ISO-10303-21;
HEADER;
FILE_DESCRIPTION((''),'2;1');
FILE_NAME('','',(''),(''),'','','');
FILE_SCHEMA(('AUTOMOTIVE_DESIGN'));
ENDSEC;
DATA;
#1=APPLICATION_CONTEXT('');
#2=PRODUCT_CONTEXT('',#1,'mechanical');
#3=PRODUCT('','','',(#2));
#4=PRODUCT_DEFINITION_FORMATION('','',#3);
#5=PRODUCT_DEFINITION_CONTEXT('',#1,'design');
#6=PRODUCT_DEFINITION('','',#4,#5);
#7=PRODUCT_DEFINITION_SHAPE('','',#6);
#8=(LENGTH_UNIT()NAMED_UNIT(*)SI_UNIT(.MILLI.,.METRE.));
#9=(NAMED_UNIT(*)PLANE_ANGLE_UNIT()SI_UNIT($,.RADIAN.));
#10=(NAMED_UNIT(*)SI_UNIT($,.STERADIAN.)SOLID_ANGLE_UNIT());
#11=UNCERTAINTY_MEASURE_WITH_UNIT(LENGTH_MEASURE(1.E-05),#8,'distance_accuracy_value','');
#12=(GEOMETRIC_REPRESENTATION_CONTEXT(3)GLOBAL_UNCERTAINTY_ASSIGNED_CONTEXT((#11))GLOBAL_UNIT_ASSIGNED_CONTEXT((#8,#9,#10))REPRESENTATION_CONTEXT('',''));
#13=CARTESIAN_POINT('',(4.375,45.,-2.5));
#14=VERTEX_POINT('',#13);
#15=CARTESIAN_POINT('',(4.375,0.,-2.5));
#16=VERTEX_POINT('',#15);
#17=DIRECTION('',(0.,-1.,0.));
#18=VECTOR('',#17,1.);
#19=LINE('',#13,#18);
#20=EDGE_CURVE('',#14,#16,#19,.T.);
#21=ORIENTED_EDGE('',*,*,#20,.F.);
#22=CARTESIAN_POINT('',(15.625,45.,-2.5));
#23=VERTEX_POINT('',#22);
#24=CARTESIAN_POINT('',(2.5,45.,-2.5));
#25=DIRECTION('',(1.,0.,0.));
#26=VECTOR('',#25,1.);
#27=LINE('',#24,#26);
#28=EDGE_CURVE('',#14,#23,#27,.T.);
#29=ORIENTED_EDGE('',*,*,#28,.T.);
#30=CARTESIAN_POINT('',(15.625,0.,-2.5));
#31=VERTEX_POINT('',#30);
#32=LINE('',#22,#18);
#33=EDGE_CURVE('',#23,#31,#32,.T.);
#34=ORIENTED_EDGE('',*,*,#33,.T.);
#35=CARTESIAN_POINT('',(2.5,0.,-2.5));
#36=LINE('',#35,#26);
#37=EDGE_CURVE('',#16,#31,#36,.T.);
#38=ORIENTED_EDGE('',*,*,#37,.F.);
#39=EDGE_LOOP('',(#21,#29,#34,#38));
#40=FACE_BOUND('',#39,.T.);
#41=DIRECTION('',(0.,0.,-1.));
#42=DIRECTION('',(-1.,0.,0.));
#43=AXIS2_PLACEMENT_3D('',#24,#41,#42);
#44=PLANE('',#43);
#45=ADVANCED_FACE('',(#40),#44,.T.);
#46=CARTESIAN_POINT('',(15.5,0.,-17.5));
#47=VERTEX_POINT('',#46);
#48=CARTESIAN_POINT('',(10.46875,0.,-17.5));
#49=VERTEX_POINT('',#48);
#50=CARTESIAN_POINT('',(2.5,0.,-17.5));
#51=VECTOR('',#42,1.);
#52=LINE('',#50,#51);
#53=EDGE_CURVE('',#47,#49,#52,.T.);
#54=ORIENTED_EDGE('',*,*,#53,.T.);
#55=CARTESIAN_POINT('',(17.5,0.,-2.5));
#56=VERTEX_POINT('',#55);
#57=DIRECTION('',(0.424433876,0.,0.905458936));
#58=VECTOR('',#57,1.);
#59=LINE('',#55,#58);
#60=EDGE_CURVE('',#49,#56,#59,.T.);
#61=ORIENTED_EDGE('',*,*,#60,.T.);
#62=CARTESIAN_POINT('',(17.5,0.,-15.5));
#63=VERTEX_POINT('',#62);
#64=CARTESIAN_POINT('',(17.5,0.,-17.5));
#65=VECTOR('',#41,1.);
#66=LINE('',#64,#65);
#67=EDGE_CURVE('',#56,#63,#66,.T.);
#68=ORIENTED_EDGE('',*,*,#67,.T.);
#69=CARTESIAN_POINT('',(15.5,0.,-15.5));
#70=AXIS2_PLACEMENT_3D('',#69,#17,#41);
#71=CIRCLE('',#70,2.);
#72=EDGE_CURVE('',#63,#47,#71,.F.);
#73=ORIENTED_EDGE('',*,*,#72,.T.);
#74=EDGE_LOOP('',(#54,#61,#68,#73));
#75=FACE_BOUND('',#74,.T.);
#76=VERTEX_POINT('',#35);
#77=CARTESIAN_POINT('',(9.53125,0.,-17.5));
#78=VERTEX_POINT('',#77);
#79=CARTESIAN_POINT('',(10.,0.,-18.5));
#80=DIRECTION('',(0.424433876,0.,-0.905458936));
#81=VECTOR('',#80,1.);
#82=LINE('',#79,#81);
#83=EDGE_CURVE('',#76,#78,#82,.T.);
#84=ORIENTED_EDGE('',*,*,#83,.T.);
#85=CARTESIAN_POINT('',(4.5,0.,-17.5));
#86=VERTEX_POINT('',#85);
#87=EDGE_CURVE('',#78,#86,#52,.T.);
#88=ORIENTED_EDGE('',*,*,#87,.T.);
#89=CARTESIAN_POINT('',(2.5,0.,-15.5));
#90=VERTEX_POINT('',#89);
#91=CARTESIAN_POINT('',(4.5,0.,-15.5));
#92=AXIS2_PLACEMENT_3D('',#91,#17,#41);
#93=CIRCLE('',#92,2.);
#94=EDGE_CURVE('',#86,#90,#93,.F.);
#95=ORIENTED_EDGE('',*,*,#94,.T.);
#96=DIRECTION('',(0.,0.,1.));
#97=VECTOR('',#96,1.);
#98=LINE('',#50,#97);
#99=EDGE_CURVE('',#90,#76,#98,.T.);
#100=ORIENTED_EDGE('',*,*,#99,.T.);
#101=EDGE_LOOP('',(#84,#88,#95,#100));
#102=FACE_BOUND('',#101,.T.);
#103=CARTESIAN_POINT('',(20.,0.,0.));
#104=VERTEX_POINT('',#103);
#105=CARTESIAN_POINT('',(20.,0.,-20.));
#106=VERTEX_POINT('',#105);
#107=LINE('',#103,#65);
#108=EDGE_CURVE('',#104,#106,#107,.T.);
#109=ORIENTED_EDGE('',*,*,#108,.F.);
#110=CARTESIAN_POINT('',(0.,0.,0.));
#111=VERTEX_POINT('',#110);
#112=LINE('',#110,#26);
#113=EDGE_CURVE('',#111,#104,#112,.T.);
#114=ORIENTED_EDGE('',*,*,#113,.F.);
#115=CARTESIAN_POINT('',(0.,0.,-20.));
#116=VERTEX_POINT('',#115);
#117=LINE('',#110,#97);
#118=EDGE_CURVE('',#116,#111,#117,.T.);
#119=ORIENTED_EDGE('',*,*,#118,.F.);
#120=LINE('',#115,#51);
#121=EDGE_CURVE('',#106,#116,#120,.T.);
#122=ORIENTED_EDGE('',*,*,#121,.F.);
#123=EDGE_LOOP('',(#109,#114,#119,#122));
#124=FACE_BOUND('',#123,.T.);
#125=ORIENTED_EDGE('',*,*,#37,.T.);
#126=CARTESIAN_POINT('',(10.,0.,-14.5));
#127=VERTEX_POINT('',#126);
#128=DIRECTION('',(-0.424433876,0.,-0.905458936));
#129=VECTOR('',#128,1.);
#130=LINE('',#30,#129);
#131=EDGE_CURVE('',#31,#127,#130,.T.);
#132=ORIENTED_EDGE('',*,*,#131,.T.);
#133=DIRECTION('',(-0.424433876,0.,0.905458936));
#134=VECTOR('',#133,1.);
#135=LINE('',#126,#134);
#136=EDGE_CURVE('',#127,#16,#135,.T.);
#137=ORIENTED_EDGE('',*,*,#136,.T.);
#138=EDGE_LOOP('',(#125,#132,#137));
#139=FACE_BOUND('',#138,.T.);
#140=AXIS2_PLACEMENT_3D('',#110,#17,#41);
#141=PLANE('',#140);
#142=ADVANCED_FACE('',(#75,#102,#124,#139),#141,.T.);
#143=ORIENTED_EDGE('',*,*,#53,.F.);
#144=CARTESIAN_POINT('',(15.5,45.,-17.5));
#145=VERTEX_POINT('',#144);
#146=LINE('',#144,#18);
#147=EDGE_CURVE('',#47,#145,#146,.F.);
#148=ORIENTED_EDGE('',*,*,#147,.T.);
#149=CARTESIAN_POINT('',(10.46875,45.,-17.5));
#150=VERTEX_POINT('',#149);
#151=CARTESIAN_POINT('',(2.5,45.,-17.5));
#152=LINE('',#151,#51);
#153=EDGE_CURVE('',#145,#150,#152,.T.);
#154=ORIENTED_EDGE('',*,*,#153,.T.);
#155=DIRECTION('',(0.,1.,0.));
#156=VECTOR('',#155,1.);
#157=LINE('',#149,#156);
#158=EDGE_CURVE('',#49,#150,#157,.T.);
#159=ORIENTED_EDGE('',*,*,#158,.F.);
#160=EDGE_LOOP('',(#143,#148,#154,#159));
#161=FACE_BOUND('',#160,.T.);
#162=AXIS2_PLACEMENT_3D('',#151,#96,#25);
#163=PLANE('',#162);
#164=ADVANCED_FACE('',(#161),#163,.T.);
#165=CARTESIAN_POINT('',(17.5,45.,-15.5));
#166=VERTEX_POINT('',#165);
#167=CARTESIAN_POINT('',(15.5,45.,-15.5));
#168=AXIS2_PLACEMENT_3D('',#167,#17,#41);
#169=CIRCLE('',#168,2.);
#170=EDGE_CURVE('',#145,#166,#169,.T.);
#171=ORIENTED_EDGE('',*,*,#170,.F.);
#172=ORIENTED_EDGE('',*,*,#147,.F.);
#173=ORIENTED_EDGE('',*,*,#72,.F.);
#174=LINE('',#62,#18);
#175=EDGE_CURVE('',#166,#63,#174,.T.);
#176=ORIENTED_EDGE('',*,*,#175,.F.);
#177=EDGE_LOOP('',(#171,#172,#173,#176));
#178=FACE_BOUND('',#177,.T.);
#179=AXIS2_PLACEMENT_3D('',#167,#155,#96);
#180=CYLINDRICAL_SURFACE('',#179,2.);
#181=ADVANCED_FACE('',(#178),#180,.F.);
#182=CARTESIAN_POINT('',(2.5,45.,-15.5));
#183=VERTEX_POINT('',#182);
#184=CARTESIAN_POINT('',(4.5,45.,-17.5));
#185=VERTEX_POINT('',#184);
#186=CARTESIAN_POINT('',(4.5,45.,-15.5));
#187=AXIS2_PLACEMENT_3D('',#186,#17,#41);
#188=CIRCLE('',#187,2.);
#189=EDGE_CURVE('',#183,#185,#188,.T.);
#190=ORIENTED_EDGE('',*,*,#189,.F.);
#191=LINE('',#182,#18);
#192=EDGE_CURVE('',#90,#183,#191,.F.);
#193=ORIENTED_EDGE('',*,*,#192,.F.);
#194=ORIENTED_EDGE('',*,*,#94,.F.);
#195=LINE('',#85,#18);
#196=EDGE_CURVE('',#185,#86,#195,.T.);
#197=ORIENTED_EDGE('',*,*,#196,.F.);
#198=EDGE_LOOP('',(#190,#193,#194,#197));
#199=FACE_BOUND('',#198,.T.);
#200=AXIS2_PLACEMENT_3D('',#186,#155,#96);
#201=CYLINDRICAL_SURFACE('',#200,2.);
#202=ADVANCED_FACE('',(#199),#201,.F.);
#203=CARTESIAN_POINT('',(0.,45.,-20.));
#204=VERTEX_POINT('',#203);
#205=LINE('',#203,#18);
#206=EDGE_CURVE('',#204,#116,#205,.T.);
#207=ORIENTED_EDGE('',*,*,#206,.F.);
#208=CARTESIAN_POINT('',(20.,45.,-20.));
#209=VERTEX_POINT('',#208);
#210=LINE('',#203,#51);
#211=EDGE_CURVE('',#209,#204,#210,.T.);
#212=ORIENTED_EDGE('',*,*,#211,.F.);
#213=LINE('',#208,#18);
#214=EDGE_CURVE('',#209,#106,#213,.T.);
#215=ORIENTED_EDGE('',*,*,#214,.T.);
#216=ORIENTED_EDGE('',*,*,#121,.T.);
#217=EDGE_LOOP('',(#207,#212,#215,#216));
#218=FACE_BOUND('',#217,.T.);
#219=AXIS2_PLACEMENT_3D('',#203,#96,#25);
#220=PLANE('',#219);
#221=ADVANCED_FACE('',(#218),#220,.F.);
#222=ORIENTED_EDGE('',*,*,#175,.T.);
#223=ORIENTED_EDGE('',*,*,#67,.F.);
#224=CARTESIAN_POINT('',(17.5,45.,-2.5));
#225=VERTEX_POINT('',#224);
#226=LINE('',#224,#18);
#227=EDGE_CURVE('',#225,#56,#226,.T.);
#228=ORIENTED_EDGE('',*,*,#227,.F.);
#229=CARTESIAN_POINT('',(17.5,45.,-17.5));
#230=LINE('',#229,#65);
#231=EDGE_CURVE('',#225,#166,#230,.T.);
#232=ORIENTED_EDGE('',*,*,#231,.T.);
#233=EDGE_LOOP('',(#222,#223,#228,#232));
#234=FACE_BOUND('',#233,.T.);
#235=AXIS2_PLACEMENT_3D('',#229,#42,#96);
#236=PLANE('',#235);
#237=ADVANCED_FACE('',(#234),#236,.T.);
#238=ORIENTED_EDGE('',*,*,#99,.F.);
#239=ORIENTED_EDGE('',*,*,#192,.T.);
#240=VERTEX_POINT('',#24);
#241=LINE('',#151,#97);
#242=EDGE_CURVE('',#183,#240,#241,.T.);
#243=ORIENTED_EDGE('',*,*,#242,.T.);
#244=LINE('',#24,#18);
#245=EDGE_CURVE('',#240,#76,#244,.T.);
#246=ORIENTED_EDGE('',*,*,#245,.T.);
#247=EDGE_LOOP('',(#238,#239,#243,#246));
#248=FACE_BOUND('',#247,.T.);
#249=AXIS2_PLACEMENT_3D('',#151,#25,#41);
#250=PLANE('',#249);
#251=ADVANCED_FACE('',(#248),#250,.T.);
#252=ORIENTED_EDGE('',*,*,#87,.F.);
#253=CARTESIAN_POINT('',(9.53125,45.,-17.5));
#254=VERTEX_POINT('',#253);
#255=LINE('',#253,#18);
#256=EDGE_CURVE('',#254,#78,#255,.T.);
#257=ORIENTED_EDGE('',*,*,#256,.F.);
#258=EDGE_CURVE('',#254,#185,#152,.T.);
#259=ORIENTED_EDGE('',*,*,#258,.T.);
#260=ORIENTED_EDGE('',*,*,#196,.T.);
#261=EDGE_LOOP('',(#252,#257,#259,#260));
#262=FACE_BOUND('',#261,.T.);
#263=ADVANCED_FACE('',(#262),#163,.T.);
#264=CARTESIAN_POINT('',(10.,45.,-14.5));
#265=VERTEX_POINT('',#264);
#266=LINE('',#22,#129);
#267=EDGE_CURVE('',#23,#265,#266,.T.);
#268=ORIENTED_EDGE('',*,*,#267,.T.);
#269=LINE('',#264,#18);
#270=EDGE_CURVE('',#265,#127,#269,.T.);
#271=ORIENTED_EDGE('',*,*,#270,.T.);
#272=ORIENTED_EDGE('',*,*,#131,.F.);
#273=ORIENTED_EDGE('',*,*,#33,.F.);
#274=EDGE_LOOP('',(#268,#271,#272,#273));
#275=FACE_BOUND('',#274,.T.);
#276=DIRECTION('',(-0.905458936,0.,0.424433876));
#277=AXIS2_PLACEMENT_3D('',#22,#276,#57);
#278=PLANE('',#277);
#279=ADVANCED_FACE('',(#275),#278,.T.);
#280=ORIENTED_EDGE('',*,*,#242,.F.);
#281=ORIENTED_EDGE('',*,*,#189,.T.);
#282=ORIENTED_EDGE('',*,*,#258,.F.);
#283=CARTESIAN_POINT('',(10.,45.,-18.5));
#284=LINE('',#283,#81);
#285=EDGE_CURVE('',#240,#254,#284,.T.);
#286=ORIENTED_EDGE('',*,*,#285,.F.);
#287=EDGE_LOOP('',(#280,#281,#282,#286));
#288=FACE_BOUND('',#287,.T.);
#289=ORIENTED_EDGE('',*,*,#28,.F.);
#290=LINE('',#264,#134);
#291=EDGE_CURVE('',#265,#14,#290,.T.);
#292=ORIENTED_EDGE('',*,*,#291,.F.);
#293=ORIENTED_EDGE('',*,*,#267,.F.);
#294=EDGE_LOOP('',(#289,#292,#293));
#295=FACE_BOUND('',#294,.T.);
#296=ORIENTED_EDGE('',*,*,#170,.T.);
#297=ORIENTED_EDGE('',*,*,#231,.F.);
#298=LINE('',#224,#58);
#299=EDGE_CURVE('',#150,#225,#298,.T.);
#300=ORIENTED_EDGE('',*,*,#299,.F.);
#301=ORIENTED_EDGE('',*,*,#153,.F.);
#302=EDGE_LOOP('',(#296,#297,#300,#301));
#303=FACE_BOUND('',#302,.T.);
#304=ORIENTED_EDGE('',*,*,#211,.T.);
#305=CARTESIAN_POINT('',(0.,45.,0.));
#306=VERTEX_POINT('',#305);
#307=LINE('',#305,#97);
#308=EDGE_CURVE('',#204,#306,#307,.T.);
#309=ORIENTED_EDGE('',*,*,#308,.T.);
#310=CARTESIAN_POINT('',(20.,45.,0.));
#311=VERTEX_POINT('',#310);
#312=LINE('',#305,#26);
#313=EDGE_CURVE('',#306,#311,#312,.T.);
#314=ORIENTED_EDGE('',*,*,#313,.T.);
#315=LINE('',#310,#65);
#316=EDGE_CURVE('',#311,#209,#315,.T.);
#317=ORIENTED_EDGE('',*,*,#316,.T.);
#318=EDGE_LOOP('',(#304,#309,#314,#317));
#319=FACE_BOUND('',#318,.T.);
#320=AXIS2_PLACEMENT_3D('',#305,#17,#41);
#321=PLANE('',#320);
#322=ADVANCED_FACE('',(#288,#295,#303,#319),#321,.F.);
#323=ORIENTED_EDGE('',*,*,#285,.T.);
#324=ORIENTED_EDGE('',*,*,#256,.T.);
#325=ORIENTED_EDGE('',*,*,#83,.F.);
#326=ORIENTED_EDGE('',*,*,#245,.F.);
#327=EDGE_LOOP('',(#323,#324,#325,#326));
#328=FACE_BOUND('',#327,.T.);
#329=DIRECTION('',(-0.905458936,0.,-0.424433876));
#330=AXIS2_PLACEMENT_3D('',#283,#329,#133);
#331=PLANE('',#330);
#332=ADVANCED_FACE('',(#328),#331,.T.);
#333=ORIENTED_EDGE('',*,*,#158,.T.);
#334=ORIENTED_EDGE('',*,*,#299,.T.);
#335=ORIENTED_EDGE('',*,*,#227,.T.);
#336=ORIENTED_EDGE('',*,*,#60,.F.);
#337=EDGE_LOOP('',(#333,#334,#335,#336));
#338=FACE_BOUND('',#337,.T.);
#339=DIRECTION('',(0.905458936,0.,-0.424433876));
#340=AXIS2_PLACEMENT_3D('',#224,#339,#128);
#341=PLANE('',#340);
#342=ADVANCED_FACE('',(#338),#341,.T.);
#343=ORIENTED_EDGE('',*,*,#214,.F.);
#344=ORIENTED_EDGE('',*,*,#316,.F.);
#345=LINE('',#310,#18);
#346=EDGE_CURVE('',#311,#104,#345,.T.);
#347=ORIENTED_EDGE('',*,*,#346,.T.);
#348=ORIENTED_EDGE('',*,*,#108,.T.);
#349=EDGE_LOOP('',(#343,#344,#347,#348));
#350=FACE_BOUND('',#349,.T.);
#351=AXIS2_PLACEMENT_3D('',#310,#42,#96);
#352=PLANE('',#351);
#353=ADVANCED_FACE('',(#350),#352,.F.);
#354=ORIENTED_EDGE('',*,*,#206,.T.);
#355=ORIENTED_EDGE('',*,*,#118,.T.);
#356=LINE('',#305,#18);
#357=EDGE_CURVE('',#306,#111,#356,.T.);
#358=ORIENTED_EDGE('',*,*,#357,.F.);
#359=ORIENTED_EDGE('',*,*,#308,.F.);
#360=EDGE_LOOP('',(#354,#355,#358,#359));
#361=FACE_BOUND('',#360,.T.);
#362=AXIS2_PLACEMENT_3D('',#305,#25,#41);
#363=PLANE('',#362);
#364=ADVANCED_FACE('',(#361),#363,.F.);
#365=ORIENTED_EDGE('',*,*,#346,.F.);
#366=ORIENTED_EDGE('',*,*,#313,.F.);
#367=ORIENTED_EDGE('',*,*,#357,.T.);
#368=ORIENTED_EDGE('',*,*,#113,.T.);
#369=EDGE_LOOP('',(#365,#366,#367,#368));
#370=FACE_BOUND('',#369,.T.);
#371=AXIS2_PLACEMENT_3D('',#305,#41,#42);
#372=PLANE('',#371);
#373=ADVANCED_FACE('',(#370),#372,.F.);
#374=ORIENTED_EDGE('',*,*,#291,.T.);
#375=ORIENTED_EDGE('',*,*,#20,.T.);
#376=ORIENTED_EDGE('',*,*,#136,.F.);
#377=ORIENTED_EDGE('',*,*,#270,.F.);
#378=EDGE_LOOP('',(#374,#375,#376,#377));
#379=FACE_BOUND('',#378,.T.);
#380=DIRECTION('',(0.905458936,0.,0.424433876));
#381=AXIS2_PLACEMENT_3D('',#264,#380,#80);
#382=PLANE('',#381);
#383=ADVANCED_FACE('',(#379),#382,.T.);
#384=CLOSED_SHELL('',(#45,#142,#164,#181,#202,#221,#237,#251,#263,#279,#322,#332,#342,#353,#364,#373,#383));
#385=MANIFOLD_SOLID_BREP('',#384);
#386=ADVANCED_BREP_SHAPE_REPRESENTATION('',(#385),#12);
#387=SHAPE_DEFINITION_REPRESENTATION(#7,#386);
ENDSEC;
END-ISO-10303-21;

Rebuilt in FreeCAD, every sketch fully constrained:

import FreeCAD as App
import Part
import Sketcher
from FreeCAD import Vector


def edges_at(feature, points):
    """Names of the edges that pass closest to the given points."""
    edges = feature.Shape.Edges
    near = lambda p: min(range(len(edges)), key=lambda i: edges[i].distToShape(Part.Vertex(*p))[0])
    return sorted({f"Edge{near(p) + 1}" for p in points})


def add_polygon(sketch, points):
    """Adds a closed chain of lines whose ends are joined by coincident constraints."""
    first, n = sketch.GeometryCount, len(points)
    for a, b in zip(points, points[1:] + points[:1]):
        sketch.addGeometry(Part.LineSegment(App.Vector(*a, 0), App.Vector(*b, 0)), False)
    for i in range(n):
        sketch.addConstraint(Sketcher.Constraint("Coincident", first + i, 2, first + (i + 1) % n, 1))

doc = App.newDocument("Part")
params = doc.addObject("Spreadsheet::Sheet", "Params")
for row, (alias, value) in enumerate([
    ("sketch1_width", "20 mm"),
    ("sketch1_width2", "15 mm"),
    ("pad1_length", "45 mm"),
    ("pad2_length", "45 mm"),
    ("fillet_radius", "2 mm"),
], start=1):
    params.set(f"A{row}", alias)
    params.set(f"B{row}", "=" + value)
    params.setAlias(f"B{row}", alias)

body = doc.addObject("PartDesign::Body", "Body")

# Sketch on XZ plane
sketch1 = body.newObject("Sketcher::SketchObject", "Sketch")
sketch1.AttachmentSupport = (doc.getObject("XZ_Plane"), [""])
sketch1.MapMode = "FlatFace"
add_polygon(sketch1, [(0, -20), (0, 0), (20, 0), (20, -20)])  # lines 0-3
add_polygon(sketch1, [(18, -2), (2, -2), (2, -18), (18, -18)])  # lines 4-7
sketch1.addConstraint(Sketcher.Constraint("Vertical", 0))
sketch1.addConstraint(Sketcher.Constraint("Horizontal", 1))
sketch1.addConstraint(Sketcher.Constraint("Vertical", 2))
sketch1.addConstraint(Sketcher.Constraint("Horizontal", 3))
sketch1.addConstraint(Sketcher.Constraint("Horizontal", 4))
sketch1.addConstraint(Sketcher.Constraint("Vertical", 5))
sketch1.addConstraint(Sketcher.Constraint("Horizontal", 6))
sketch1.addConstraint(Sketcher.Constraint("Vertical", 7))
sketch1.addConstraint(Sketcher.Constraint("Coincident", 0, 2, -1, 1))
sketch1.addConstraint(Sketcher.Constraint("Equal", 3, 0))
sketch1.addConstraint(Sketcher.Constraint("Equal", 6, 5))
sketch1.addConstraint(Sketcher.Constraint("DistanceX", 1, 1, 1, 2, 20.0))
sketch1.addConstraint(Sketcher.Constraint("DistanceX", 4, 2, 4, 1, 15.0))
sketch1.addConstraint(Sketcher.Constraint("DistanceX", -1, 1, 4, 2, 2.5))
sketch1.addConstraint(Sketcher.Constraint("DistanceY", 4, 2, -1, 1, 2.5))
sketch1.setExpression("Constraints[19]", "Params.sketch1_width")
sketch1.setExpression("Constraints[20]", "Params.sketch1_width2")
pad1 = body.newObject("PartDesign::Pad", "Pad")
pad1.Profile = sketch1
pad1.setExpression("Length", "Params.pad1_length")
pad1.Reversed = True

# Sketch on XZ plane
sketch2 = body.newObject("Sketcher::SketchObject", "Sketch001")
sketch2.AttachmentSupport = (doc.getObject("XZ_Plane"), [""])
sketch2.MapMode = "FlatFace"
add_polygon(sketch2, [(10, -18.5), (17.5, -2.5), (15.6, -2.5), (10, -14.5), (4.4, -2.5), (2.5, -2.5)])  # lines 0-5
sketch2.addConstraint(Sketcher.Constraint("Horizontal", 1))
sketch2.addConstraint(Sketcher.Constraint("Horizontal", 4))
sketch2.addConstraint(Sketcher.Constraint("Parallel", 0, 2))
sketch2.addConstraint(Sketcher.Constraint("Parallel", 3, 5))
sketch2.addConstraint(Sketcher.Constraint("Horizontal", 1, 2, 3, 2))
sketch2.addConstraint(Sketcher.Constraint("Vertical", 2, 2, 5, 2))
sketch2.addConstraint(Sketcher.Constraint("Equal", 1, 4))
sketch2.addConstraint(Sketcher.Constraint("DistanceX", -1, 1, 2, 2, 10.0))
sketch2.addConstraint(Sketcher.Constraint("DistanceY", 2, 2, 1, 2, 12.0))
sketch2.addConstraint(Sketcher.Constraint("DistanceX", 4, 2, 0, 2, 15.0))
sketch2.addConstraint(Sketcher.Constraint("DistanceY", 5, 2, 2, 2, 4.0))
sketch2.addConstraint(Sketcher.Constraint("DistanceY", 0, 2, -1, 1, 2.5))
pad2 = body.newObject("PartDesign::Pad", "Pad001")
pad2.Profile = sketch2
pad2.setExpression("Length", "Params.pad2_length")
pad2.Reversed = True
doc.recompute()

fillet = body.newObject("PartDesign::Fillet", "Fillet")
fillet.Base = (pad2, edges_at(pad2, [(2.5, 22.5, -17.5), (17.5, 22.5, -17.5)]))
fillet.setExpression("Radius", "Params.fillet_radius")

doc.recompute()
